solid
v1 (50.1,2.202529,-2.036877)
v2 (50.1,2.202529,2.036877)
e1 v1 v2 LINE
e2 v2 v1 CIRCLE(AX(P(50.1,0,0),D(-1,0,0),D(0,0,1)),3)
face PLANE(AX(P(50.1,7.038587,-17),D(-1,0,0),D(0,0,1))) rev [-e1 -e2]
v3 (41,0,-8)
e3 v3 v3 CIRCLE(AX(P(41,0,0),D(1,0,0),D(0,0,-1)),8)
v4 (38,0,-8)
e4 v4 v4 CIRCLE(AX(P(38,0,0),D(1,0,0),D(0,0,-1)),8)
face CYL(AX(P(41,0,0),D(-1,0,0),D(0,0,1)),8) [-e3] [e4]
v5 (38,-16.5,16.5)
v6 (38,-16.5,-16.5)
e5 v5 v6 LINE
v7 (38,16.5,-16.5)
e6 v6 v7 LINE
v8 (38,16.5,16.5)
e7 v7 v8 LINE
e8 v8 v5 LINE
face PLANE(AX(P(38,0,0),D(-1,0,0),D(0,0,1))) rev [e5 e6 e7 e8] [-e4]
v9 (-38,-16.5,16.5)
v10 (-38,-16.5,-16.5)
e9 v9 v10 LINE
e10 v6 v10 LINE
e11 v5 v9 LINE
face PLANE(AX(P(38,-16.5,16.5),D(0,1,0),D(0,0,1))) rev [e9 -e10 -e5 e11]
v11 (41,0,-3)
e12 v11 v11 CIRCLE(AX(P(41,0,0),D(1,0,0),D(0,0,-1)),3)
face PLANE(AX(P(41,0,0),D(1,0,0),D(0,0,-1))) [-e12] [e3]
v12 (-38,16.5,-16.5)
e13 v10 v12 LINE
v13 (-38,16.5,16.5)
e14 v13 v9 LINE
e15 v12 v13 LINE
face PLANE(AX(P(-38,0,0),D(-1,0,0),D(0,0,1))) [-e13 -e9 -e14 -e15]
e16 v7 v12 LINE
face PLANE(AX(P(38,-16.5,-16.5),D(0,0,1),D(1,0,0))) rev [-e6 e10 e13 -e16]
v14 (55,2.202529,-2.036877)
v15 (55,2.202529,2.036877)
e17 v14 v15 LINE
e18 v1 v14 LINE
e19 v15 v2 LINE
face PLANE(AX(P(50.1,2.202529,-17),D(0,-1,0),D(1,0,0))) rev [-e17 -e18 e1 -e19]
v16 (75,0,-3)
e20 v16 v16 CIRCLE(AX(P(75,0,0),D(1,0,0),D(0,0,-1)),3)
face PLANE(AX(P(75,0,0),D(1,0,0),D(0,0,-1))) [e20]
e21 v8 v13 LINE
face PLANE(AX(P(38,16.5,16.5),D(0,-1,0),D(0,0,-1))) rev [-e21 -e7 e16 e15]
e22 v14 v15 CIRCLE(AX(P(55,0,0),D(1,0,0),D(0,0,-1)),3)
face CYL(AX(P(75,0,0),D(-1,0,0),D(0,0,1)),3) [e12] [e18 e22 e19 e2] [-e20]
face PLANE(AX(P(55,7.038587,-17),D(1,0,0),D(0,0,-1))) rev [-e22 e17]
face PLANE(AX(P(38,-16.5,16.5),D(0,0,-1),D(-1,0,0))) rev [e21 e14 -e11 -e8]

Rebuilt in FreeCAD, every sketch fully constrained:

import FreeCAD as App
import Part
import Sketcher

doc = App.newDocument("Part")
body = doc.addObject("PartDesign::Body", "Body")

# Sketch on YZ plane
sketch1 = doc.addObject("Sketcher::SketchObject", "Sketch")
body.addObject(sketch1)
sketch1.AttachmentSupport = (doc.YZ_Plane, [""])
sketch1.MapMode = "FlatFace"
sketch1.addGeometry(Part.LineSegment(App.Vector(16.5, 16.5, 0), App.Vector(-16.5, 16.5, 0)), False)
sketch1.addGeometry(Part.LineSegment(App.Vector(-16.5, 16.5, 0), App.Vector(-16.5, -16.5, 0)), False)
sketch1.addGeometry(Part.LineSegment(App.Vector(-16.5, -16.5, 0), App.Vector(16.5, -16.5, 0)), False)
sketch1.addGeometry(Part.LineSegment(App.Vector(16.5, -16.5, 0), App.Vector(16.5, 16.5, 0)), False)
sketch1.addConstraint(Sketcher.Constraint("Coincident", 0, 2, 1, 1))
sketch1.addConstraint(Sketcher.Constraint("Coincident", 1, 2, 2, 1))
sketch1.addConstraint(Sketcher.Constraint("Coincident", 2, 2, 3, 1))
sketch1.addConstraint(Sketcher.Constraint("Coincident", 3, 2, 0, 1))
sketch1.addConstraint(Sketcher.Constraint("Horizontal", 0))
sketch1.addConstraint(Sketcher.Constraint("Vertical", 1))
sketch1.addConstraint(Sketcher.Constraint("Horizontal", 2))
sketch1.addConstraint(Sketcher.Constraint("Vertical", 3))
sketch1.addConstraint(Sketcher.Constraint("Symmetric", 0, 2, 2, 2, -1, 1))
sketch1.addConstraint(Sketcher.Constraint("Equal", 2, 1))
sketch1.addConstraint(Sketcher.Constraint("DistanceX", 0, 2, 0, 1, 33.0))
pad1 = doc.addObject("PartDesign::Pad", "Pad")
body.addObject(pad1)
pad1.Profile = sketch1
pad1.Length = 76
pad1.Midplane = True

# Sketch on YZ plane
sketch2 = doc.addObject("Sketcher::SketchObject", "Sketch001")
body.addObject(sketch2)
sketch2.AttachmentSupport = (doc.YZ_Plane, [""])
sketch2.MapMode = "FlatFace"
sketch2.AttachmentOffset = App.Placement(App.Vector(0, 0, 38), App.Rotation())
sketch2.addGeometry(Part.Circle(App.Vector(0, 0, 0), App.Vector(0, 0, 1), 8), False)
sketch2.addConstraint(Sketcher.Constraint("Coincident", 0, 3, -1, 1))
sketch2.addConstraint(Sketcher.Constraint("Diameter", 0, 16.0))
pad2 = doc.addObject("PartDesign::Pad", "Pad001")
body.addObject(pad2)
pad2.Profile = sketch2
pad2.Length = 3

# Sketch on YZ plane
sketch3 = doc.addObject("Sketcher::SketchObject", "Sketch002")
body.addObject(sketch3)
sketch3.AttachmentSupport = (doc.YZ_Plane, [""])
sketch3.MapMode = "FlatFace"
sketch3.AttachmentOffset = App.Placement(App.Vector(0, 0, 41), App.Rotation())
sketch3.addGeometry(Part.Circle(App.Vector(0, 0, 0), App.Vector(0, 0, 1), 3), False)
sketch3.addConstraint(Sketcher.Constraint("Coincident", 0, 3, -1, 1))
sketch3.addConstraint(Sketcher.Constraint("Diameter", 0, 6.0))
pad3 = doc.addObject("PartDesign::Pad", "Pad002")
body.addObject(pad3)
pad3.Profile = sketch3
pad3.Length = 34

# Sketch on XY plane
sketch4 = doc.addObject("Sketcher::SketchObject", "Sketch003")
body.addObject(sketch4)
sketch4.AttachmentSupport = (doc.XY_Plane, [""])
sketch4.MapMode = "FlatFace"
sketch4.addGeometry(Part.LineSegment(App.Vector(50.1, 7.038587, 0), App.Vector(50.1, 2.202529, 0)), False)
sketch4.addGeometry(Part.LineSegment(App.Vector(50.1, 2.202529, 0), App.Vector(55, 2.202529, 0)), False)
sketch4.addGeometry(Part.LineSegment(App.Vector(55, 2.202529, 0), App.Vector(55, 7.038587, 0)), False)
sketch4.addGeometry(Part.LineSegment(App.Vector(55, 7.038587, 0), App.Vector(50.1, 7.038587, 0)), False)
sketch4.addConstraint(Sketcher.Constraint("Coincident", 0, 2, 1, 1))
sketch4.addConstraint(Sketcher.Constraint("Coincident", 1, 2, 2, 1))
sketch4.addConstraint(Sketcher.Constraint("Coincident", 2, 2, 3, 1))
sketch4.addConstraint(Sketcher.Constraint("Coincident", 3, 2, 0, 1))
sketch4.addConstraint(Sketcher.Constraint("Vertical", 0))
sketch4.addConstraint(Sketcher.Constraint("Horizontal", 1))
sketch4.addConstraint(Sketcher.Constraint("Vertical", 2))
sketch4.addConstraint(Sketcher.Constraint("Horizontal", 3))
sketch4.addConstraint(Sketcher.Constraint("DistanceX", 1, 1, 1, 2, 4.9))
sketch4.addConstraint(Sketcher.Constraint("DistanceX", -1, 1, 1, 2, 55.0))
sketch4.addConstraint(Sketcher.Constraint("DistanceY", 0, 2, 0, 1, 4.836058))
sketch4.addConstraint(Sketcher.Constraint("DistanceY", -1, 1, 0, 2, 2.202529))
pocket1 = doc.addObject("PartDesign::Pocket", "Pocket")
body.addObject(pocket1)
pocket1.Profile = sketch4
pocket1.Length = 34
pocket1.Midplane = True

doc.recompute()
